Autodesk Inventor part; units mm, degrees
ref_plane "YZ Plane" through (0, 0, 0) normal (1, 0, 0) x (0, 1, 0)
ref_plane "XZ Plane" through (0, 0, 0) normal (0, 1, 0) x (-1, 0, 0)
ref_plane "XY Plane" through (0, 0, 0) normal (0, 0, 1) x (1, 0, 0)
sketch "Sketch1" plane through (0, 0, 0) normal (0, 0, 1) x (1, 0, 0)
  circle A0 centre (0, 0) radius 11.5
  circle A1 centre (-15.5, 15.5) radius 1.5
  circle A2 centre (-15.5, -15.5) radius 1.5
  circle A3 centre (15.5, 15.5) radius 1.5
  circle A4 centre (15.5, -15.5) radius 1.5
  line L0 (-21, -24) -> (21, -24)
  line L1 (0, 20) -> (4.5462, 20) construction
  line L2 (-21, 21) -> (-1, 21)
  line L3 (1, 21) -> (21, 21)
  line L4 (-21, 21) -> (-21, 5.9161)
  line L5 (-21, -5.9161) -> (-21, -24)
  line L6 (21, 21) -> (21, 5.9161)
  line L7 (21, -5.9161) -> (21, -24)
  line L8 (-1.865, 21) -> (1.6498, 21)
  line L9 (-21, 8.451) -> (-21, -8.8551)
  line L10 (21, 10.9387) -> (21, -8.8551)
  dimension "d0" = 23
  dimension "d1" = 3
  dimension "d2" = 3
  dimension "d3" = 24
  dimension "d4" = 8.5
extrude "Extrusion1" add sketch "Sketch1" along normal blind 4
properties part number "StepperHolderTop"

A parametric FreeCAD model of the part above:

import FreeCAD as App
import Part
import Sketcher
Q = App.Units.Quantity

doc = App.newDocument("Part")
body = doc.addObject("PartDesign::Body", "Body")

# Sketch on XY plane
sketch1 = body.newObject("Sketcher::SketchObject", "Sketch")
sketch1.AttachmentSupport = (doc.getObject("XY_Plane"), [""])
sketch1.MapMode = "FlatFace"
sketch1.addGeometry([
    Part.LineSegment(App.Vector(-21, 21, 0), App.Vector(-21, -24, 0)),  # 0
    Part.LineSegment(App.Vector(-21, -24, 0), App.Vector(21, -24, 0)),  # 1
    Part.LineSegment(App.Vector(21, -24, 0), App.Vector(21, 21, 0)),  # 2
    Part.LineSegment(App.Vector(21, 21, 0), App.Vector(-21, 21, 0)),  # 3
    Part.Circle(App.Vector(-15.5, -15.5, 0), App.Vector(0, 0, 1), 1.5),  # 4
    Part.Circle(App.Vector(15.5, -15.5, 0), App.Vector(0, 0, 1), 1.5),  # 5
    Part.Circle(App.Vector(-15.5, 15.5, 0), App.Vector(0, 0, 1), 1.5),  # 6
    Part.Circle(App.Vector(0, 0, 0), App.Vector(0, 0, 1), 11.5),  # 7
    Part.Circle(App.Vector(15.5, 15.5, 0), App.Vector(0, 0, 1), 1.5),  # 8
], False)
sketch1.addConstraint([
    Sketcher.Constraint("Coincident", 0, 2, 1, 1),
    Sketcher.Constraint("Coincident", 1, 2, 2, 1),
    Sketcher.Constraint("Coincident", 2, 2, 3, 1),
    Sketcher.Constraint("Coincident", 3, 2, 0, 1),
    Sketcher.Constraint("Vertical", 0),
    Sketcher.Constraint("Horizontal", 1),
    Sketcher.Constraint("Vertical", 2),
    Sketcher.Constraint("Horizontal", 3),
    Sketcher.Constraint("Coincident", 7, 3, -1, 1),
    Sketcher.Constraint("Equal", 4, 5),
    Sketcher.Constraint("Equal", 5, 6),
    Sketcher.Constraint("Equal", 6, 8),
    Sketcher.Constraint("Symmetric", 5, 3, 6, 3, -1, 1),
    Sketcher.Constraint("Symmetric", 4, 3, 8, 3, -1, 1),
    Sketcher.Constraint("Symmetric", 4, 3, 5, 3, -2),
    Sketcher.Constraint("Diameter", 4, Q("3 mm")),
    Sketcher.Constraint("Diameter", 7, Q("23 mm")),
    Sketcher.Constraint("DistanceY", 0, 2, -1, 1, Q("24 mm")),
    Sketcher.Constraint("DistanceY", 0, 2, 4, 3, Q("8.5 mm")),
    Sketcher.Constraint("DistanceX", 1, 1, 1, 2, Q("42 mm")),
    Sketcher.Constraint("DistanceY", 0, 2, 0, 1, Q("45 mm")),
    Sketcher.Constraint("DistanceX", 0, 2, -1, 1, Q("21 mm")),
    Sketcher.Constraint("DistanceX", 4, 3, 5, 3, Q("31 mm")),
])
pad1 = body.newObject("PartDesign::Pad", "Pad")
pad1.Profile = sketch1
pad1.Length = 4

doc.recompute()
